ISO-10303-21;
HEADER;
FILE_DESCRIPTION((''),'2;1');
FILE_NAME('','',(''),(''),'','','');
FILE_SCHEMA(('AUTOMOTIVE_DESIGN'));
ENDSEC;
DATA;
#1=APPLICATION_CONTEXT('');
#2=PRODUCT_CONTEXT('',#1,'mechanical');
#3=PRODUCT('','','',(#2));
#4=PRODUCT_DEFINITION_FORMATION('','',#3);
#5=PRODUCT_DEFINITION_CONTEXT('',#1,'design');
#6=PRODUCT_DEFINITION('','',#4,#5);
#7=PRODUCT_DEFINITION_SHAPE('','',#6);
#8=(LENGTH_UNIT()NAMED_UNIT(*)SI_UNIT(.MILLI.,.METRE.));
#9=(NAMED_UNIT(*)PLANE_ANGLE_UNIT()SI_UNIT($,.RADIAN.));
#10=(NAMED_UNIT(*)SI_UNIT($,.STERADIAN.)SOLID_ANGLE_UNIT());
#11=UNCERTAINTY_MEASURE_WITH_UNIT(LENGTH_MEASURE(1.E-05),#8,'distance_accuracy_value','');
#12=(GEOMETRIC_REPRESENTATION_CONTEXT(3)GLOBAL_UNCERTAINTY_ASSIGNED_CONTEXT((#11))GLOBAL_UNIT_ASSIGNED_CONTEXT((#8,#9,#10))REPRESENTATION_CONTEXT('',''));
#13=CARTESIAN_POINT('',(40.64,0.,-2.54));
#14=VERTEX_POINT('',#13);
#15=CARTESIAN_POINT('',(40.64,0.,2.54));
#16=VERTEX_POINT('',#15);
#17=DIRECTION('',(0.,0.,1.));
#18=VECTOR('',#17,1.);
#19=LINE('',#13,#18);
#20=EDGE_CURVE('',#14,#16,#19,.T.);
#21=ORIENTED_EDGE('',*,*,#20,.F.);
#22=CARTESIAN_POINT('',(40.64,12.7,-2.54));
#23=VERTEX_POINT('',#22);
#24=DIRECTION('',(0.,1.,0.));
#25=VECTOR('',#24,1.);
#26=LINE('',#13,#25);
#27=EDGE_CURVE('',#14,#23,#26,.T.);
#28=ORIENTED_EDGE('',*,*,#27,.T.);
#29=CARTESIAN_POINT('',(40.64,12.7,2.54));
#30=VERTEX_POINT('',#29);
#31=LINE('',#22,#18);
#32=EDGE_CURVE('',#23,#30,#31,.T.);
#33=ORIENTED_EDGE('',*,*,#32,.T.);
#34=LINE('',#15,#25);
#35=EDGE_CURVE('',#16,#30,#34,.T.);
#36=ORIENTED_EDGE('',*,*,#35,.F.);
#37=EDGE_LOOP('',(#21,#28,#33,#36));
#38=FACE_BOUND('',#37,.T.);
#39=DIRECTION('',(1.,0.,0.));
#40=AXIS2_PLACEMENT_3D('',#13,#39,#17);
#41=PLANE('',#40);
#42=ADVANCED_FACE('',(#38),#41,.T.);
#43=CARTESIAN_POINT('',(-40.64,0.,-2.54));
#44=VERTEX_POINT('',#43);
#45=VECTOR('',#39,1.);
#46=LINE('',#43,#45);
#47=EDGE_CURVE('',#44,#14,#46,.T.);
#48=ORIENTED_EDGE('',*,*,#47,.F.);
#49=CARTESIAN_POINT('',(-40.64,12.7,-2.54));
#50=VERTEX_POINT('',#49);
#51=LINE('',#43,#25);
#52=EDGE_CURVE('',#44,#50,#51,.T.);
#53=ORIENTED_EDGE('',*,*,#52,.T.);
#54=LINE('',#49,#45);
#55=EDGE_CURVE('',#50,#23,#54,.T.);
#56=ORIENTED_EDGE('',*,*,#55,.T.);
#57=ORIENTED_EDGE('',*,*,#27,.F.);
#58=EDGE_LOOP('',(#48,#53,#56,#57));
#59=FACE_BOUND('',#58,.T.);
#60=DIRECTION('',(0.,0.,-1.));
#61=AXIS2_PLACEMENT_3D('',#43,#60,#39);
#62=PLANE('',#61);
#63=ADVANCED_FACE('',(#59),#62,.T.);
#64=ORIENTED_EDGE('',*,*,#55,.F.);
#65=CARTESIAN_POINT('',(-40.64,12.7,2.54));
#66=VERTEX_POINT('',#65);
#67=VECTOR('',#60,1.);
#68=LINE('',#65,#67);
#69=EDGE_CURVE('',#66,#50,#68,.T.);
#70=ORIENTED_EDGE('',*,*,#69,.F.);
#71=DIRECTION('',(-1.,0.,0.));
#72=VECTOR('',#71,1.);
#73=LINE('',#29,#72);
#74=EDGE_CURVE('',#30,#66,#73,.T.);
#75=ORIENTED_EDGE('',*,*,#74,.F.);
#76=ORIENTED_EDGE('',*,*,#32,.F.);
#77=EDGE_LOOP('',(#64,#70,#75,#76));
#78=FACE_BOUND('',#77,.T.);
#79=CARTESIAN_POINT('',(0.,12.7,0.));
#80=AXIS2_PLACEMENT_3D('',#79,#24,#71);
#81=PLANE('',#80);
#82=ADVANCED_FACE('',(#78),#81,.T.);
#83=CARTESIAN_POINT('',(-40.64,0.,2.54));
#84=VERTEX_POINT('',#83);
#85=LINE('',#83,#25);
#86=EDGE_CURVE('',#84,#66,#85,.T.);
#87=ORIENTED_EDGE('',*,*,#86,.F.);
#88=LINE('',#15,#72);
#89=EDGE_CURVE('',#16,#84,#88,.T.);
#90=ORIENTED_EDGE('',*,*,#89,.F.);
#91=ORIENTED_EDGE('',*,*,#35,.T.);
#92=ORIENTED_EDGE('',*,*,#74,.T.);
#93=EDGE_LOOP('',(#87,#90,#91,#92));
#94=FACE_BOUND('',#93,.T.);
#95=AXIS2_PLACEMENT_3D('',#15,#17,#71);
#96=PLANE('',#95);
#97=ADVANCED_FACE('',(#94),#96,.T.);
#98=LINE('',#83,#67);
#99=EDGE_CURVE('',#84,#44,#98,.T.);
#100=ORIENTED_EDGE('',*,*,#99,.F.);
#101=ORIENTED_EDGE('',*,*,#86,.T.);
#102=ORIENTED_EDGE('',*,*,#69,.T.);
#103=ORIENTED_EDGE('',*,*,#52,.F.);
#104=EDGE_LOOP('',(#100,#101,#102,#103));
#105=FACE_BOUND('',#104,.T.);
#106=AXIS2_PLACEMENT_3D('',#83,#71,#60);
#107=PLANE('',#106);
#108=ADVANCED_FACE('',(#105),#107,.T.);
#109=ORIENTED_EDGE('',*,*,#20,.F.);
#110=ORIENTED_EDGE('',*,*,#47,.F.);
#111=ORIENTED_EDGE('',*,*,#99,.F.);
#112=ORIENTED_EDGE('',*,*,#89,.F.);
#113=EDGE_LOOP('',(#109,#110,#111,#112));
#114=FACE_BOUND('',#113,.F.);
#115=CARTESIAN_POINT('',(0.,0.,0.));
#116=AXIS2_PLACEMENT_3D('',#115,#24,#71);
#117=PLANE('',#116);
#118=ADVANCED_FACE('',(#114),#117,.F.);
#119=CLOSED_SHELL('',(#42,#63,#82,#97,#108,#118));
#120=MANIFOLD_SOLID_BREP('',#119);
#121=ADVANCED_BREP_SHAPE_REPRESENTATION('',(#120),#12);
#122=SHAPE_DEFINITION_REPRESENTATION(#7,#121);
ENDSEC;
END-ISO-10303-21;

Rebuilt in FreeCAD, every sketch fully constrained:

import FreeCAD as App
import Part
import Sketcher
from FreeCAD import Vector
Q = App.Units.Quantity


def add_polygon(sketch, points):
    """Adds a closed chain of lines whose ends are joined by coincident constraints."""
    first, n = sketch.GeometryCount, len(points)
    for a, b in zip(points, points[1:] + points[:1]):
        sketch.addGeometry(Part.LineSegment(App.Vector(*a, 0), App.Vector(*b, 0)), False)
    for i in range(n):
        sketch.addConstraint(Sketcher.Constraint("Coincident", first + i, 2, first + (i + 1) % n, 1))

doc = App.newDocument("Part")
body = doc.addObject("PartDesign::Body", "Body")

# Sketch on XZ plane
sketch1 = body.newObject("Sketcher::SketchObject", "Sketch")
sketch1.AttachmentSupport = (doc.getObject("XZ_Plane"), [""])
sketch1.MapMode = "FlatFace"
add_polygon(sketch1, [(-40.64, 2.54), (40.64, 2.54), (40.64, -2.54), (-40.64, -2.54)])  # lines 0-3
sketch1.addConstraint([
    Sketcher.Constraint("Horizontal", 0),
    Sketcher.Constraint("Vertical", 1),
    Sketcher.Constraint("Horizontal", 2),
    Sketcher.Constraint("Vertical", 3),
    Sketcher.Constraint("Symmetric", 0, 2, 2, 2, -1, 1),
    Sketcher.Constraint("DistanceX", 0, 1, 0, 2, Q("3.2 in")),
    Sketcher.Constraint("DistanceY", 1, 2, 1, 1, Q("0.2 in")),
])
pad1 = body.newObject("PartDesign::Pad", "Pad")
pad1.Profile = sketch1
pad1.Length = Q("0.5 in")
pad1.Reversed = True

doc.recompute()
